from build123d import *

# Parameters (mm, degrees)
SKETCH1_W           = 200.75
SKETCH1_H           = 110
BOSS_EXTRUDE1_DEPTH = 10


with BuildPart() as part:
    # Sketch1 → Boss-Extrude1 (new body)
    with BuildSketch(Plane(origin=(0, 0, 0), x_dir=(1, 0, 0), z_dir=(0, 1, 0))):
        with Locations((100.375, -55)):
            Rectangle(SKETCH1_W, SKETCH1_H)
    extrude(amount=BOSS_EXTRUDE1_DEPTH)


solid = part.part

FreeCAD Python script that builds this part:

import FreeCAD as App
import Part
import Sketcher
Q = App.Units.Quantity


def add_polygon(sketch, points):
    """Adds a closed chain of lines whose ends are joined by coincident constraints."""
    first, n = sketch.GeometryCount, len(points)
    for a, b in zip(points, points[1:] + points[:1]):
        sketch.addGeometry(Part.LineSegment(App.Vector(*a, 0), App.Vector(*b, 0)), False)
    for i in range(n):
        sketch.addConstraint(Sketcher.Constraint("Coincident", first + i, 2, first + (i + 1) % n, 1))

doc = App.newDocument("Part")
params = doc.addObject("Spreadsheet::Sheet", "Params")
for row, (alias, value) in enumerate([
    ("sketch1_height", "110 mm"),
    ("sketch1_width", "200.75 mm"),
    ("pad1_length", "10 mm"),
], start=1):
    params.set(f"A{row}", alias)
    params.set(f"B{row}", "=" + value)
    params.setAlias(f"B{row}", alias)

body = doc.addObject("PartDesign::Body", "Body")

sketch1 = doc.addObject("Sketcher::SketchObject", "Sketch")
body.addObject(sketch1)
sketch1.AttachmentSupport = (doc.XZ_Plane, [""])
sketch1.MapMode = "FlatFace"
add_polygon(sketch1, [(0, 0), (0, 110), (201, 110), (201, 0)])
sketch1.addConstraint([
    Sketcher.Constraint("Vertical", 0),
    Sketcher.Constraint("Horizontal", 1),
    Sketcher.Constraint("Vertical", 2),
    Sketcher.Constraint("Horizontal", 3),
    Sketcher.Constraint("Coincident", 3, 2, -1, 1),
    Sketcher.Constraint("DistanceY", 0, 1, 0, 2, Q("110 mm")),
    Sketcher.Constraint("DistanceX", 1, 1, 1, 2, Q("200.75 mm")),
])
sketch1.setExpression("Constraints[9]", "Params.sketch1_height")
sketch1.setExpression("Constraints[10]", "Params.sketch1_width")
pad1 = doc.addObject("PartDesign::Pad", "Pad")
body.addObject(pad1)
pad1.Profile = sketch1
pad1.setExpression("Length", "Params.pad1_length")
pad1.Reversed = True

doc.recompute()
